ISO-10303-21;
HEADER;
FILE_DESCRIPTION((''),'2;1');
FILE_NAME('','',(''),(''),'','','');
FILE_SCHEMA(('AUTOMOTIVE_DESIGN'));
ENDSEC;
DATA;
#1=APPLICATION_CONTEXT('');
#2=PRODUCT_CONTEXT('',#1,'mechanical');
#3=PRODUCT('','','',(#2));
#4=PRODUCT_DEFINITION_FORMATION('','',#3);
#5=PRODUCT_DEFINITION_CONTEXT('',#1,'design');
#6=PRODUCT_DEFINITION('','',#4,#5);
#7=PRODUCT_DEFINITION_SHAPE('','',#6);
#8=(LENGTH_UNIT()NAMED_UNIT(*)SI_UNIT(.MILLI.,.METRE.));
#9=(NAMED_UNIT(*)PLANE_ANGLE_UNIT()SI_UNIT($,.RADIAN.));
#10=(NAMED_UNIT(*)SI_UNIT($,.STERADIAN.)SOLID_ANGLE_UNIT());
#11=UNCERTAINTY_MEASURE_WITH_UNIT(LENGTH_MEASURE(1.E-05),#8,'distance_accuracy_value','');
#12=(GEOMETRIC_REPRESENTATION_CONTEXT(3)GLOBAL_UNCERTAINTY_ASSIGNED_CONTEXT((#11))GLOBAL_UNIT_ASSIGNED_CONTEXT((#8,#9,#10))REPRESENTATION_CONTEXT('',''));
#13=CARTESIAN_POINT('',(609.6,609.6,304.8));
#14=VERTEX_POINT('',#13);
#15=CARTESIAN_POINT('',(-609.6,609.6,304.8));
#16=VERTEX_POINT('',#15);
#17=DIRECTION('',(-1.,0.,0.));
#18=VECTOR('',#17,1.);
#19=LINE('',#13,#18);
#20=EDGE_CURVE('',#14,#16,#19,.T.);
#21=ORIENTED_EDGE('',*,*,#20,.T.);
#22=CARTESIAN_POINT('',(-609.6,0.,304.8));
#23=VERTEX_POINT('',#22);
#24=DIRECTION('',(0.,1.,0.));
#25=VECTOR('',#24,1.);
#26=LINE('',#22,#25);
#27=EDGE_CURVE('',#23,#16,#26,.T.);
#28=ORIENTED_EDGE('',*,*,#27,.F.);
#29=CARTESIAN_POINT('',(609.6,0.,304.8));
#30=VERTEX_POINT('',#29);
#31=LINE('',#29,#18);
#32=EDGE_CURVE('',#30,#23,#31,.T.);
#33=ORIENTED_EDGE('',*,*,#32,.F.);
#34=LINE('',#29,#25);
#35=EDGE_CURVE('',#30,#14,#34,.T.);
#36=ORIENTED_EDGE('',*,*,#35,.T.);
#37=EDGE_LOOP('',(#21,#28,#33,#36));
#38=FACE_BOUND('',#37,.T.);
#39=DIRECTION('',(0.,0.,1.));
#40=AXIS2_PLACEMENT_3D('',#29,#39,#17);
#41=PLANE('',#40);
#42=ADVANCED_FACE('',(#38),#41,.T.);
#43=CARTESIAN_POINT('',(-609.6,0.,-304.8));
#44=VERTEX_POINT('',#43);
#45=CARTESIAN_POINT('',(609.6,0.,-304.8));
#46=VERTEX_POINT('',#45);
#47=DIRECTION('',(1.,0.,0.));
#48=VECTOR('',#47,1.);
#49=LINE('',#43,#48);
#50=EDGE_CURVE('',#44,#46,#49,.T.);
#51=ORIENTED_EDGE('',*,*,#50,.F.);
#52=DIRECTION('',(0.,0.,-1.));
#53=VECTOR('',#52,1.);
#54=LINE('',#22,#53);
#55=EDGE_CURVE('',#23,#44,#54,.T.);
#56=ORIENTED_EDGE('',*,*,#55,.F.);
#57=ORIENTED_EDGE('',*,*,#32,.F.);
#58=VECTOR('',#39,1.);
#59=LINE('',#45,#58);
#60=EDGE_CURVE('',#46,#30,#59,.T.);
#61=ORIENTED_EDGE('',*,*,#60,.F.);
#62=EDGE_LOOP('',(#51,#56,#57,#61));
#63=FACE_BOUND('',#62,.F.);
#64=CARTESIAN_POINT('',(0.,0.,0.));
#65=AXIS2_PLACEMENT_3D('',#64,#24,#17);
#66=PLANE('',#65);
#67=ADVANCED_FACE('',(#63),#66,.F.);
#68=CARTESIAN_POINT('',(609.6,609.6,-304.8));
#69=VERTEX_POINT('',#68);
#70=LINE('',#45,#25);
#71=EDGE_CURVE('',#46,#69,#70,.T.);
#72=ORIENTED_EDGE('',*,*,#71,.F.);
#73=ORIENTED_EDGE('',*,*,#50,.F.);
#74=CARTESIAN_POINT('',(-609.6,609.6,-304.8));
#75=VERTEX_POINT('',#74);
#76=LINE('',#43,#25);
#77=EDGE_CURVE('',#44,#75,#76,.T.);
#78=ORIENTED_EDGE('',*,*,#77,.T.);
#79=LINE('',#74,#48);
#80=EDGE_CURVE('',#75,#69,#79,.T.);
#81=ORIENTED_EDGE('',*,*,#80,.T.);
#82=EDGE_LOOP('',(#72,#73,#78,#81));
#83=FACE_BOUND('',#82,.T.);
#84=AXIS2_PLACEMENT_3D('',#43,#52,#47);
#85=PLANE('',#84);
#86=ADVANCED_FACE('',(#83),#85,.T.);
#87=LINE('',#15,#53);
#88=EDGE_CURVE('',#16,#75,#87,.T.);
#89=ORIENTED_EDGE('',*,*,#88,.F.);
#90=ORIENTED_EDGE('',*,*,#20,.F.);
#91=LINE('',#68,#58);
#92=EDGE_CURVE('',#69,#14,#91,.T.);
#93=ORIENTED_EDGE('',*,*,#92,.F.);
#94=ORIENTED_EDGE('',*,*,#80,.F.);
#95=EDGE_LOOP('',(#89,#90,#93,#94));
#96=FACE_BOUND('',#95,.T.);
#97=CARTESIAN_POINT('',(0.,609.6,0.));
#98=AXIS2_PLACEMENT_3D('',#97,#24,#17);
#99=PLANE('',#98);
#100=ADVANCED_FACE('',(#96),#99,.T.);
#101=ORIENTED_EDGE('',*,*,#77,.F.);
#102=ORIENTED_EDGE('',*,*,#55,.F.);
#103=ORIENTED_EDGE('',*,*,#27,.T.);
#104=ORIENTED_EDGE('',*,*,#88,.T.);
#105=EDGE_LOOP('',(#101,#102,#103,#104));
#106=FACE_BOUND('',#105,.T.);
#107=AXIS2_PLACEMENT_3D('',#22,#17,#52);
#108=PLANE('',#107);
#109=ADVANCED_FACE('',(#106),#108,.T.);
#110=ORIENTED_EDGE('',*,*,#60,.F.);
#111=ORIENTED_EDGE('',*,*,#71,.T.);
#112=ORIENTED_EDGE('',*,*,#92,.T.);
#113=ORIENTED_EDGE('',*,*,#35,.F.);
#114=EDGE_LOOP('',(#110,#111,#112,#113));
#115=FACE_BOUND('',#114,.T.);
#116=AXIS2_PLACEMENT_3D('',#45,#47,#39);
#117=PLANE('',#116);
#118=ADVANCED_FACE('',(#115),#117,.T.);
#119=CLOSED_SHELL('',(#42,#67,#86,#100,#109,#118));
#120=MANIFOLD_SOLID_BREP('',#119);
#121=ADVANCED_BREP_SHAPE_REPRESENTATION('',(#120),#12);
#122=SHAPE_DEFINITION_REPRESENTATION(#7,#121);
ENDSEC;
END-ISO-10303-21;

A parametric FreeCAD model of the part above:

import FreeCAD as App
import Part
import Sketcher
from FreeCAD import Vector
Q = App.Units.Quantity

doc = App.newDocument("Part")
body = doc.addObject("PartDesign::Body", "Body")

# Sketch on XZ plane
sketch1 = body.newObject("Sketcher::SketchObject", "Sketch")
sketch1.AttachmentSupport = (doc.getObject("XZ_Plane"), [""])
sketch1.MapMode = "FlatFace"
sketch1.addGeometry([
    Part.LineSegment(Vector(610, -305, 0), Vector(-610, -305, 0)),
    Part.LineSegment(Vector(-610, -305, 0), Vector(-610, 305, 0)),
    Part.LineSegment(Vector(-610, 305, 0), Vector(610, 305, 0)),
    Part.LineSegment(Vector(610, 305, 0), Vector(610, -305, 0)),
], False)
sketch1.addConstraint([
    Sketcher.Constraint("Coincident", 0, 2, 1, 1),
    Sketcher.Constraint("Coincident", 1, 2, 2, 1),
    Sketcher.Constraint("Coincident", 2, 2, 3, 1),
    Sketcher.Constraint("Coincident", 3, 2, 0, 1),
    Sketcher.Constraint("Horizontal", 0),
    Sketcher.Constraint("Vertical", 1),
    Sketcher.Constraint("Horizontal", 2),
    Sketcher.Constraint("Vertical", 3),
    Sketcher.Constraint("Symmetric", 0, 2, 2, 2, -1, 1),
    Sketcher.Constraint("DistanceX", 0, 2, 0, 1, Q("48 in")),
    Sketcher.Constraint("DistanceY", 1, 1, 1, 2, Q("24 in")),
])
pad1 = body.newObject("PartDesign::Pad", "Pad")
pad1.Profile = sketch1
pad1.Length = Q("24 in")
pad1.Reversed = True

doc.recompute()
